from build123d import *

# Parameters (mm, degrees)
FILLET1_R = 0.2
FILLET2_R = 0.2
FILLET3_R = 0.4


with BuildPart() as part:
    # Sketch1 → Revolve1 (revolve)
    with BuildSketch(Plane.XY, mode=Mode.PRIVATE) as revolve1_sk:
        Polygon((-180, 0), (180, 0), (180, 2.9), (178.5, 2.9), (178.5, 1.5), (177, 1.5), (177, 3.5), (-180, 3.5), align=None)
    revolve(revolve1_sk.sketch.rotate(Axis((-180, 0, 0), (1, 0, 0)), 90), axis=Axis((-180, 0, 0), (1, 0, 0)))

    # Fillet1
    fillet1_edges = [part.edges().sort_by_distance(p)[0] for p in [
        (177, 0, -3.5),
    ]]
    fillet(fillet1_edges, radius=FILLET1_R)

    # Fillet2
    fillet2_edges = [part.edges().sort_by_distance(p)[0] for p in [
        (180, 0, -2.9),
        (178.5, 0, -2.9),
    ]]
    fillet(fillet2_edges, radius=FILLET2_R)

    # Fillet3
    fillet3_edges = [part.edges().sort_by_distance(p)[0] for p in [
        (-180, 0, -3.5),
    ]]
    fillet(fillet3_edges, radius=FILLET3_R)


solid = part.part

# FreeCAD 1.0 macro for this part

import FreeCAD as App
import Part
import Sketcher


def edges_at(feature, points):
    """Names of the edges that pass closest to the given points."""
    edges = feature.Shape.Edges
    near = lambda p: min(range(len(edges)), key=lambda i: edges[i].distToShape(Part.Vertex(*p))[0])
    return sorted({f"Edge{near(p) + 1}" for p in points})

doc = App.newDocument("Part")
body = doc.addObject("PartDesign::Body", "Body")

# Sketch on XY plane
sketch1 = doc.addObject("Sketcher::SketchObject", "Sketch")
body.addObject(sketch1)
sketch1.AttachmentSupport = (doc.XY_Plane, [""])
sketch1.MapMode = "FlatFace"
sketch1.addGeometry([
    Part.LineSegment(App.Vector(-180, 0, 0), App.Vector(180, 0, 0)),  # 0
    Part.LineSegment(App.Vector(180, 0, 0), App.Vector(180, 2.9, 0)),  # 1
    Part.LineSegment(App.Vector(180, 2.9, 0), App.Vector(178.5, 2.9, 0)),  # 2
    Part.LineSegment(App.Vector(178.5, 2.9, 0), App.Vector(178.5, 1.5, 0)),  # 3
    Part.LineSegment(App.Vector(178.5, 1.5, 0), App.Vector(177, 1.5, 0)),  # 4
    Part.LineSegment(App.Vector(177, 1.5, 0), App.Vector(177, 3.5, 0)),  # 5
    Part.LineSegment(App.Vector(177, 3.5, 0), App.Vector(-180, 3.5, 0)),  # 6
    Part.LineSegment(App.Vector(-180, 3.5, 0), App.Vector(-180, 0, 0)),  # 7
], False)
sketch1.addConstraint([
    Sketcher.Constraint("Coincident", 0, 2, 1, 1),
    Sketcher.Constraint("Coincident", 1, 2, 2, 1),
    Sketcher.Constraint("Coincident", 2, 2, 3, 1),
    Sketcher.Constraint("Coincident", 3, 2, 4, 1),
    Sketcher.Constraint("Coincident", 4, 2, 5, 1),
    Sketcher.Constraint("Coincident", 5, 2, 6, 1),
    Sketcher.Constraint("Coincident", 6, 2, 7, 1),
    Sketcher.Constraint("Coincident", 7, 2, 0, 1),
    Sketcher.Constraint("Horizontal", 0),
    Sketcher.Constraint("Vertical", 1),
    Sketcher.Constraint("Horizontal", 2),
    Sketcher.Constraint("Vertical", 3),
    Sketcher.Constraint("Horizontal", 4),
    Sketcher.Constraint("Vertical", 5),
    Sketcher.Constraint("Horizontal", 6),
    Sketcher.Constraint("Vertical", 7),
    Sketcher.Constraint("Symmetric", 0, 2, 7, 2, -1, 1),
    Sketcher.Constraint("Equal", 2, 4),
    Sketcher.Constraint("DistanceX", 0, 1, 0, 2, 360.0),
    Sketcher.Constraint("DistanceX", 6, 2, 6, 1, 357.0),
    Sketcher.Constraint("DistanceY", 5, 1, 5, 2, 2.0),
    Sketcher.Constraint("DistanceY", 1, 1, 1, 2, 2.9),
    Sketcher.Constraint("DistanceY", 3, 2, 3, 1, 1.4),
])
revolution = doc.addObject("PartDesign::Revolution", "Revolution")
body.addObject(revolution)
revolution.Profile = sketch1
revolution.ReferenceAxis = (sketch1, ["H_Axis"])
revolution.Angle = 360
doc.recompute()

fillet = doc.addObject("PartDesign::Fillet", "Fillet")
body.addObject(fillet)
fillet.Base = (revolution, edges_at(revolution, [(177, 0, -3.5)]))
fillet.Radius = 0.2
doc.recompute()

fillet2 = doc.addObject("PartDesign::Fillet", "Fillet001")
body.addObject(fillet2)
fillet2.Base = (fillet, edges_at(fillet, [(180, 0, -2.9), (178.5, 0, -2.9)]))
fillet2.Radius = 0.2
doc.recompute()

fillet3 = doc.addObject("PartDesign::Fillet", "Fillet002")
body.addObject(fillet3)
fillet3.Base = (fillet2, edges_at(fillet2, [(-180, 0, -3.5)]))
fillet3.Radius = 0.4

doc.recompute()
